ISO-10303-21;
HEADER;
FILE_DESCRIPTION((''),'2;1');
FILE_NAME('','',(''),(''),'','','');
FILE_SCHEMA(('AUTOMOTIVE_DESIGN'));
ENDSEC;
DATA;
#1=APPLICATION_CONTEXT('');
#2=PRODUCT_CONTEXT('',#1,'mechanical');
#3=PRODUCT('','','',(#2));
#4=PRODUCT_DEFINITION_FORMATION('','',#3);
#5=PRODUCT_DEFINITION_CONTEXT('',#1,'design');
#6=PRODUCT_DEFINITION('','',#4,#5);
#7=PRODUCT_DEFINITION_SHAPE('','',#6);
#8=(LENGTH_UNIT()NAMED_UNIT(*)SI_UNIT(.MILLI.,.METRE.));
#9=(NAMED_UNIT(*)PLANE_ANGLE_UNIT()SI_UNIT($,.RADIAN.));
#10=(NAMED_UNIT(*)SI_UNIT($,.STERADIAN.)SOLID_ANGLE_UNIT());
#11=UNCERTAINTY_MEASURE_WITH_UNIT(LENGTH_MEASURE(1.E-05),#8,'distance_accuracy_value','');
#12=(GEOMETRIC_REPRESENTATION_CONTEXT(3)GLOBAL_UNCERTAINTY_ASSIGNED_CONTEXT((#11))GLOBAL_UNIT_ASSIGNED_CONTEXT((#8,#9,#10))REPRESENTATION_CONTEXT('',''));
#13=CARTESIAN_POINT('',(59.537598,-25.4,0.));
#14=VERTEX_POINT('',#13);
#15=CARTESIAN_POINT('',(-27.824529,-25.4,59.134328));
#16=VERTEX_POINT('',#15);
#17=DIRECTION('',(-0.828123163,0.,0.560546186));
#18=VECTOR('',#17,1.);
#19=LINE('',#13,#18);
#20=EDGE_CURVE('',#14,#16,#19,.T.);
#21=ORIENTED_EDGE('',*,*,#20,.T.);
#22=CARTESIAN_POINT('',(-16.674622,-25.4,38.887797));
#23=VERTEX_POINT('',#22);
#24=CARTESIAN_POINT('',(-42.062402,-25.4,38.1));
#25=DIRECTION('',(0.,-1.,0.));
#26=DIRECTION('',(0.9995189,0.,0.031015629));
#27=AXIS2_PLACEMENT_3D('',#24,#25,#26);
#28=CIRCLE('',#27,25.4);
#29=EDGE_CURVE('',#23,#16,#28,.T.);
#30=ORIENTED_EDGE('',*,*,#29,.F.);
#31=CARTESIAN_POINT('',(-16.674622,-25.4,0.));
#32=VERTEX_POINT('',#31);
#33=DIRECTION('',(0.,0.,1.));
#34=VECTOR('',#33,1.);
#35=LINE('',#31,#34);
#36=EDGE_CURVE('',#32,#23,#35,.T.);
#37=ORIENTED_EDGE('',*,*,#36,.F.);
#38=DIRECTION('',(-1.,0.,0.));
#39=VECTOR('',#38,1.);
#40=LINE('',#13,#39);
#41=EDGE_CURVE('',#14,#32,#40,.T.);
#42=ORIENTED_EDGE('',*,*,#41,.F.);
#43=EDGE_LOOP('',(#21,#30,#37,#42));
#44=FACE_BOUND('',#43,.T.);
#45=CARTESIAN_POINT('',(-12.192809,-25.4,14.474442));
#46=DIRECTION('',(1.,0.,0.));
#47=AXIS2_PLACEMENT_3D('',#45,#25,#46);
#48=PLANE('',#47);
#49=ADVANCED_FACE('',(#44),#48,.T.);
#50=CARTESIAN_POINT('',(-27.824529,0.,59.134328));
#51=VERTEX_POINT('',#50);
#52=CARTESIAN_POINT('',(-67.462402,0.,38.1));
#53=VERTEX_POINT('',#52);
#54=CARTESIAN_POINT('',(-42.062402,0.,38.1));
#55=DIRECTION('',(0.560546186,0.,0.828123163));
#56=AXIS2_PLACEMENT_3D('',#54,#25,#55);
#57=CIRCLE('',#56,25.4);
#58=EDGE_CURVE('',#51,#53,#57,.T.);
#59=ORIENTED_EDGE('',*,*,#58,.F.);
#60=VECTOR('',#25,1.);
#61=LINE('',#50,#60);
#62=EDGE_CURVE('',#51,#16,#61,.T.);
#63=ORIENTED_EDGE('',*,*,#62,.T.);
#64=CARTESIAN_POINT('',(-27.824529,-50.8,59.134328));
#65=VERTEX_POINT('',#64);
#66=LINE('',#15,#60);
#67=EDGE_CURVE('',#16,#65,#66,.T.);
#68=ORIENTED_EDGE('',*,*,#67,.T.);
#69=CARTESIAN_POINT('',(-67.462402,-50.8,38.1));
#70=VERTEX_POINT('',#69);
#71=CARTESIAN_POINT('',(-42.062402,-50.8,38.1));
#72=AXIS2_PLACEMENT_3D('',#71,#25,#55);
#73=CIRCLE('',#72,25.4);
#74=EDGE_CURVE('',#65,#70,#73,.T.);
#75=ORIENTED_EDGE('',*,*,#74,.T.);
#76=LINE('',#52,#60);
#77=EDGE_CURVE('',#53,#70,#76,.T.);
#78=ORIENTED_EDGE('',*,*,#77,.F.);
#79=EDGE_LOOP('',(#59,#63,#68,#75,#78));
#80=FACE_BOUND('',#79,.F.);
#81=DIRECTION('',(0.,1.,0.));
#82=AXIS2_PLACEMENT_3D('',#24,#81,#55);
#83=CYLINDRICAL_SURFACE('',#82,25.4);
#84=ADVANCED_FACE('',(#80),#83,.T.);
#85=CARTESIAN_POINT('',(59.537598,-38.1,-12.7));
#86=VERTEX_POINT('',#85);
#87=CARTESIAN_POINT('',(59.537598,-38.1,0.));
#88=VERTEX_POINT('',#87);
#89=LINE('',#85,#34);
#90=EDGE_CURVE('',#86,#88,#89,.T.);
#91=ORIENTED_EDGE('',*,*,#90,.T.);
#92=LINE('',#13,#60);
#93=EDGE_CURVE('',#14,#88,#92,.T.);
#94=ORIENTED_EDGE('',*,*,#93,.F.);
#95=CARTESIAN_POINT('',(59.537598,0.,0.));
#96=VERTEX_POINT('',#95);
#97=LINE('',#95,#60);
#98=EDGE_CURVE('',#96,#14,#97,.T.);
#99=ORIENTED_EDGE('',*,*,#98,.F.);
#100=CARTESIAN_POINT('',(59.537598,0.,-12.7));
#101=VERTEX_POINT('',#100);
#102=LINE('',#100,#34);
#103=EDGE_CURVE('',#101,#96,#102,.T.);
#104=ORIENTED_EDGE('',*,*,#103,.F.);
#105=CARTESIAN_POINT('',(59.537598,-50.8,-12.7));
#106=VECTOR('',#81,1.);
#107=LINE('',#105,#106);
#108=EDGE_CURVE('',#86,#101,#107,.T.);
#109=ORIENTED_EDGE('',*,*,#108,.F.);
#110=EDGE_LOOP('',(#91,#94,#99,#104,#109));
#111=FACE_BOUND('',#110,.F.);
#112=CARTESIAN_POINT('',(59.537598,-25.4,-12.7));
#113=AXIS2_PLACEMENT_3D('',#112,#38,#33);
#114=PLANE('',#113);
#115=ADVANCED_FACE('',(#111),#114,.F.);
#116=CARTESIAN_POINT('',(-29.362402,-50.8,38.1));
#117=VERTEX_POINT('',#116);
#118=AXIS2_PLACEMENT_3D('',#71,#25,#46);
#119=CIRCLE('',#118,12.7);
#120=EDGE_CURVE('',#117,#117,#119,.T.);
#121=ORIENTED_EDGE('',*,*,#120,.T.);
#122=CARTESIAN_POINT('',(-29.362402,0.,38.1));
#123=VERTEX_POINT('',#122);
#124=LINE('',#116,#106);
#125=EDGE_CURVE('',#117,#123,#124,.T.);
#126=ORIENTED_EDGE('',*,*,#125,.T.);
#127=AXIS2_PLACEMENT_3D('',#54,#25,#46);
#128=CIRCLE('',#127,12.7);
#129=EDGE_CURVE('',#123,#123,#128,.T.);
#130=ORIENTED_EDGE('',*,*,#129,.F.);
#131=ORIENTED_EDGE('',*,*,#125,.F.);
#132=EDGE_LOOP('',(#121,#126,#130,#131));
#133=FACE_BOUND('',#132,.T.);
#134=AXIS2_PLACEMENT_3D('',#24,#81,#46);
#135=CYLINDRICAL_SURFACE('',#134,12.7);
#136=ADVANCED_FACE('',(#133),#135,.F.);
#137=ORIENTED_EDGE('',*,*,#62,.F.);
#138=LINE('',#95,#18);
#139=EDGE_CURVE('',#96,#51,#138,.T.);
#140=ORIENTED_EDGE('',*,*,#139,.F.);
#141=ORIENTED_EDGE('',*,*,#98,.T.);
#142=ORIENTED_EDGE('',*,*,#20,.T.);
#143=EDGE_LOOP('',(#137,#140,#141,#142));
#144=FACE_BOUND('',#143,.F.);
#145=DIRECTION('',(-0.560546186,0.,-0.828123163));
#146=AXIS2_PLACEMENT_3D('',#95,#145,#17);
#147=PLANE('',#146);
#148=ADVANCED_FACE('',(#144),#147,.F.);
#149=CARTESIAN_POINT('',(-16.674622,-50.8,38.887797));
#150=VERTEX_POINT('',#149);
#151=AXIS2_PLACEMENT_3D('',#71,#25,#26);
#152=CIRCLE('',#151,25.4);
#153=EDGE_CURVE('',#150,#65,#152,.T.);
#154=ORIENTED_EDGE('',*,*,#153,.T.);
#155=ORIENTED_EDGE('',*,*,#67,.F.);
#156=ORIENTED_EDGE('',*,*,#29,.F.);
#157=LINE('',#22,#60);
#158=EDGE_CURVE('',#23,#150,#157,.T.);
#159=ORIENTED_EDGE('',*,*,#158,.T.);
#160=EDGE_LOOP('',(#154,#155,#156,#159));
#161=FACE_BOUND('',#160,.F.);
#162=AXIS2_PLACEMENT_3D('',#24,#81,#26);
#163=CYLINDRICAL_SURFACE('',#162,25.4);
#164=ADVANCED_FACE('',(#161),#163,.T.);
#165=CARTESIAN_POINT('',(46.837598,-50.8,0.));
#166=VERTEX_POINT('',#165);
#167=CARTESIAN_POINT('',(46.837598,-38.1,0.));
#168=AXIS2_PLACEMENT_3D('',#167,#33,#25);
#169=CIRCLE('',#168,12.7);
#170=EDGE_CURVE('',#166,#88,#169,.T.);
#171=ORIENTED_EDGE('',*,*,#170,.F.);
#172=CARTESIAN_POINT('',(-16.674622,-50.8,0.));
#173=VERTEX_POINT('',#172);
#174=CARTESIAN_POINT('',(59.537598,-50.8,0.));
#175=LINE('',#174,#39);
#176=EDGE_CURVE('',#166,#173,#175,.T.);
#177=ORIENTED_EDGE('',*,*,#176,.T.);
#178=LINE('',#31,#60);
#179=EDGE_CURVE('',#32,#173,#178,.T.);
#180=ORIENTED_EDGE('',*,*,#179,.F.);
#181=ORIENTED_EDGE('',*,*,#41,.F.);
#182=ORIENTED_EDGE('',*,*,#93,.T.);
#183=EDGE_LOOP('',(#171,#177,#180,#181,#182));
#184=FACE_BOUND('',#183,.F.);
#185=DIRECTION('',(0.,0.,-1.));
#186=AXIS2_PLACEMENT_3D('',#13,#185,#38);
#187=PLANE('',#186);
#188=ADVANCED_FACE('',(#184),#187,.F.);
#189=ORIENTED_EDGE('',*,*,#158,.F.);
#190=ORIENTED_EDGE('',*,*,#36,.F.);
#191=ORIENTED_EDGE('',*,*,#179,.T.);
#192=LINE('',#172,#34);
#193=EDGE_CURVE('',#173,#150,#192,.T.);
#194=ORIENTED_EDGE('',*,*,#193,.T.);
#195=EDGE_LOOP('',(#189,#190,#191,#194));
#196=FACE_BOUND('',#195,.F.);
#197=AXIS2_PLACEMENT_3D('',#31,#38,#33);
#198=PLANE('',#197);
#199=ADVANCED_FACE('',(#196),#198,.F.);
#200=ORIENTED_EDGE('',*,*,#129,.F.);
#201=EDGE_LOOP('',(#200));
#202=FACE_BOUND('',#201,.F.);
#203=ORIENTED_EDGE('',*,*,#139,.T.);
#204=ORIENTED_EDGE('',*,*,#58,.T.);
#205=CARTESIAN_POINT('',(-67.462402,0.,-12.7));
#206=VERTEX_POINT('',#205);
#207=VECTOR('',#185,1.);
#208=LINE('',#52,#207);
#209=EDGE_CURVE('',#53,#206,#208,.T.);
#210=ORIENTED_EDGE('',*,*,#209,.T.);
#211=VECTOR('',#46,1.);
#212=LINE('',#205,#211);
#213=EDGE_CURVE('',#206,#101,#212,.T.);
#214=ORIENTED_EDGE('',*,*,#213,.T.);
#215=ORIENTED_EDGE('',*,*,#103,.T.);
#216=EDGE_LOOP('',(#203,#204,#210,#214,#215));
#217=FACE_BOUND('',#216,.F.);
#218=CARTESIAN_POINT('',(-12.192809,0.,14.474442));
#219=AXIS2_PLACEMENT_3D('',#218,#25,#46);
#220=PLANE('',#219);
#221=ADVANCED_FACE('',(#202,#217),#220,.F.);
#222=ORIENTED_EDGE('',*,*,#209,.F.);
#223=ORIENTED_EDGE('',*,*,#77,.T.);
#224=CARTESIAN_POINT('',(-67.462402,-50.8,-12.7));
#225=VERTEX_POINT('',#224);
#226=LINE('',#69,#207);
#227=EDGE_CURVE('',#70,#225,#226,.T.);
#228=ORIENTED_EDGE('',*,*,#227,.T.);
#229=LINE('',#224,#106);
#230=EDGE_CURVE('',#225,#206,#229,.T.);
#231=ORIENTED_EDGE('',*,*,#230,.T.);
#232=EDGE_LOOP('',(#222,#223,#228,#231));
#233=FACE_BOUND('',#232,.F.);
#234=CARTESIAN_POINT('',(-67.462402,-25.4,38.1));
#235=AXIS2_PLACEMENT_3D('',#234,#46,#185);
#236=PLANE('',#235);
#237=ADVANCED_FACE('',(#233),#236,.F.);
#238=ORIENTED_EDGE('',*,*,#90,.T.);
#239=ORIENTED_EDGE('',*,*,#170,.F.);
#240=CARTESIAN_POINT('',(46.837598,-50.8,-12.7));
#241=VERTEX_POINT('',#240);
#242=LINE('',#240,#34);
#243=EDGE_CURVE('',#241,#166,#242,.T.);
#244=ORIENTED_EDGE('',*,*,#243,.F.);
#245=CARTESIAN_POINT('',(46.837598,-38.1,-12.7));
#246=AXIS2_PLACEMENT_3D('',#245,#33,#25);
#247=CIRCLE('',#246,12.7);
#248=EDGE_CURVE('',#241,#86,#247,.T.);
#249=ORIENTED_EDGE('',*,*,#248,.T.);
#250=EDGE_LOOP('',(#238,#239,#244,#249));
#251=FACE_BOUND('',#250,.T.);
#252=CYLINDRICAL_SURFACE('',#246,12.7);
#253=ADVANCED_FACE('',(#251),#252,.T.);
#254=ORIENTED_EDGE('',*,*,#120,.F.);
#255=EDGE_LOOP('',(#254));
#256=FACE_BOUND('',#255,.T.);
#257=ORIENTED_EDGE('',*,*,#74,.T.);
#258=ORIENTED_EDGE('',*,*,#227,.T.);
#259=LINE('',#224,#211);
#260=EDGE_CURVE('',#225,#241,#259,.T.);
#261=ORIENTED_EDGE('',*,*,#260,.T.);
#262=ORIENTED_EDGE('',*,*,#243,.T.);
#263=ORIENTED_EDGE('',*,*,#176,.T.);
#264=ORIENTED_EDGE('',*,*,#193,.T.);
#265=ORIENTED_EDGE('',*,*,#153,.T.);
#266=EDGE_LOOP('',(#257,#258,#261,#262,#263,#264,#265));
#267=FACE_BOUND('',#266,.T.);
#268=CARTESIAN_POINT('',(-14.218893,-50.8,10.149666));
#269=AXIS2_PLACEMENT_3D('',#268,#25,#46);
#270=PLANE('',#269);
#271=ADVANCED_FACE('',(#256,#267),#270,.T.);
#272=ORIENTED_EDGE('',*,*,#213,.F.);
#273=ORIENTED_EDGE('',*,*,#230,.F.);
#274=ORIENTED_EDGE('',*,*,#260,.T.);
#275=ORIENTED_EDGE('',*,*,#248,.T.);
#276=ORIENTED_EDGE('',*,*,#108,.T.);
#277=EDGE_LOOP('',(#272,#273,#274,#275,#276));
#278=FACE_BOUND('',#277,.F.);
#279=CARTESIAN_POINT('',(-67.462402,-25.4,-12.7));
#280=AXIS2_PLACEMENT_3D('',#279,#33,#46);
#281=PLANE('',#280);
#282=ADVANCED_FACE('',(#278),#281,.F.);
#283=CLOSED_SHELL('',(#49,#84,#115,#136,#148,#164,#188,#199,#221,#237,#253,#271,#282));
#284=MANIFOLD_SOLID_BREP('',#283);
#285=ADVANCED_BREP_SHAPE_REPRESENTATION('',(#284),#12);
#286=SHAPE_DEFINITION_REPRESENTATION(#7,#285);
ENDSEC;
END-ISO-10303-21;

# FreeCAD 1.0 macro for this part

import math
import FreeCAD as App
import Part
import Sketcher

V = App.Vector
Q = App.Units.Quantity


def edges_at(feature, points):
    """Names of the edges that pass closest to the given points."""
    edges = feature.Shape.Edges
    near = lambda p: min(range(len(edges)), key=lambda i: edges[i].distToShape(Part.Vertex(*p))[0])
    return sorted({f"Edge{near(p) + 1}" for p in points})

doc = App.newDocument("Part")
body = doc.addObject("PartDesign::Body", "Body")

sketch1 = doc.addObject("Sketcher::SketchObject", "Sketch")
body.addObject(sketch1)
sketch1.AttachmentSupport = (doc.XZ_Plane, [""])
sketch1.MapMode = "FlatFace"
sketch1.addGeometry(Part.LineSegment(V(59.537598, 0, 0), V(-27.824529, 59.134328, 0)), False)
sketch1.addGeometry(Part.ArcOfCircle(Part.Circle(V(-42.062402, 38.1, 0), V(0, 0, 1), 25.4), math.radians(55.906421), math.radians(180)), False)
sketch1.addGeometry(Part.LineSegment(V(-67.462402, 38.1, 0), V(-67.462402, -12.7, 0)), False)
sketch1.addGeometry(Part.LineSegment(V(-67.462402, -12.7, 0), V(59.537598, -12.7, 0)), False)
sketch1.addGeometry(Part.LineSegment(V(59.537598, -12.7, 0), V(59.537598, 0, 0)), False)
sketch1.addGeometry(Part.Circle(V(-42.062402, 38.1, 0), V(0, 0, 1), 12.7), False)
sketch1.addConstraint(Sketcher.Constraint("Tangent", 0, 2, 1, 1))
sketch1.addConstraint(Sketcher.Constraint("Tangent", 1, 2, 2, 1))
sketch1.addConstraint(Sketcher.Constraint("Coincident", 2, 2, 3, 1))
sketch1.addConstraint(Sketcher.Constraint("Coincident", 3, 2, 4, 1))
sketch1.addConstraint(Sketcher.Constraint("Coincident", 4, 2, 0, 1))
sketch1.addConstraint(Sketcher.Constraint("Vertical", 2))
sketch1.addConstraint(Sketcher.Constraint("Horizontal", 3))
sketch1.addConstraint(Sketcher.Constraint("Vertical", 4))
sketch1.addConstraint(Sketcher.Constraint("Coincident", 5, 3, 1, 3))
sketch1.addConstraint(Sketcher.Constraint("PointOnObject", 4, 2, -1))
sketch1.addConstraint(Sketcher.Constraint("Diameter", 5, Q("1 in")))
sketch1.addConstraint(Sketcher.Constraint("Radius", 1, Q("1 in")))
sketch1.addConstraint(Sketcher.Constraint("DistanceX", 3, 1, 3, 2, Q("5 in")))
sketch1.addConstraint(Sketcher.Constraint("DistanceY", 2, 2, 2, 1, Q("2 in")))
sketch1.addConstraint(Sketcher.Constraint("DistanceY", 4, 1, 4, 2, Q("0.5 in")))
sketch1.addConstraint(Sketcher.Constraint("DistanceX", 1, 3, -1, 1, Q("1.6560001 in")))
pad1 = doc.addObject("PartDesign::Pad", "Pad")
body.addObject(pad1)
pad1.Profile = sketch1
pad1.Length = Q("1 in")

sketch2 = doc.addObject("Sketcher::SketchObject", "Sketch001")
body.addObject(sketch2)
sketch2.AttachmentSupport = (doc.XZ_Plane, [""])
sketch2.MapMode = "FlatFace"
sketch2.AttachmentOffset = App.Placement(V(0, 0, 1 * 25.4), App.Rotation())
sketch2.addGeometry(Part.LineSegment(V(-16.674622, 0, 0), V(-16.674622, 38.887797, 0)), False)
sketch2.addGeometry(Part.ArcOfCircle(Part.Circle(V(-42.062402, 38.1, 0), V(0, 0, 1), 25.4), math.radians(1.77735), math.radians(55.906421)), False)
sketch2.addGeometry(Part.ArcOfCircle(Part.Circle(V(-42.062402, 38.1, 0), V(0, 0, 1), 25.4), math.radians(55.906421), math.radians(180)), False)
sketch2.addGeometry(Part.LineSegment(V(-67.462402, 38.1, 0), V(-67.462402, -12.7, 0)), False)
sketch2.addGeometry(Part.LineSegment(V(-67.462402, -12.7, 0), V(59.537598, -12.7, 0)), False)
sketch2.addGeometry(Part.LineSegment(V(59.537598, -12.7, 0), V(59.537598, 0, 0)), False)
sketch2.addGeometry(Part.LineSegment(V(59.537598, 0, 0), V(-16.674622, 0, 0)), False)
sketch2.addGeometry(Part.Circle(V(-42.062402, 38.1, 0), V(0, 0, 1), 12.7), False)
sketch2.addConstraint(Sketcher.Constraint("Coincident", 0, 2, 1, 1))
sketch2.addConstraint(Sketcher.Constraint("Tangent", 1, 2, 2, 1))
sketch2.addConstraint(Sketcher.Constraint("Tangent", 2, 2, 3, 1))
sketch2.addConstraint(Sketcher.Constraint("Coincident", 3, 2, 4, 1))
sketch2.addConstraint(Sketcher.Constraint("Coincident", 4, 2, 5, 1))
sketch2.addConstraint(Sketcher.Constraint("Coincident", 5, 2, 6, 1))
sketch2.addConstraint(Sketcher.Constraint("Coincident", 6, 2, 0, 1))
sketch2.addConstraint(Sketcher.Constraint("Vertical", 0))
sketch2.addConstraint(Sketcher.Constraint("Vertical", 3))
sketch2.addConstraint(Sketcher.Constraint("Horizontal", 4))
sketch2.addConstraint(Sketcher.Constraint("Vertical", 5))
sketch2.addConstraint(Sketcher.Constraint("Horizontal", 6))
sketch2.addConstraint(Sketcher.Constraint("Coincident", 7, 3, 1, 3))
sketch2.addConstraint(Sketcher.Constraint("Equal", 1, 2))
sketch2.addConstraint(Sketcher.Constraint("PointOnObject", 5, 2, -1))
sketch2.addConstraint(Sketcher.Constraint("Diameter", 7, Q("1 in")))
sketch2.addConstraint(Sketcher.Constraint("Radius", 1, Q("1 in")))
sketch2.addConstraint(Sketcher.Constraint("DistanceX", 4, 1, 4, 2, Q("5 in")))
sketch2.addConstraint(Sketcher.Constraint("DistanceY", 3, 2, 3, 1, Q("2 in")))
sketch2.addConstraint(Sketcher.Constraint("DistanceY", 5, 1, 5, 2, Q("0.5 in")))
sketch2.addConstraint(Sketcher.Constraint("DistanceX", 1, 3, -1, 1, Q("1.6560001 in")))
sketch2.addConstraint(Sketcher.Constraint("DistanceX", 6, 2, 6, 1, Q("76.21222 mm")))
sketch2.addConstraint(Sketcher.Constraint("DistanceX", 1, 2, -1, 1, Q("27.824529 mm")))
pad2 = doc.addObject("PartDesign::Pad", "Pad001")
body.addObject(pad2)
pad2.Profile = sketch2
pad2.Length = Q("1 in")
doc.recompute()

fillet = doc.addObject("PartDesign::Fillet", "Fillet")
body.addObject(fillet)
fillet.Base = (pad2, edges_at(pad2, [(59.538, -50.8, -6.35)]))
fillet.Radius = Q("0.5 in")

doc.recompute()
